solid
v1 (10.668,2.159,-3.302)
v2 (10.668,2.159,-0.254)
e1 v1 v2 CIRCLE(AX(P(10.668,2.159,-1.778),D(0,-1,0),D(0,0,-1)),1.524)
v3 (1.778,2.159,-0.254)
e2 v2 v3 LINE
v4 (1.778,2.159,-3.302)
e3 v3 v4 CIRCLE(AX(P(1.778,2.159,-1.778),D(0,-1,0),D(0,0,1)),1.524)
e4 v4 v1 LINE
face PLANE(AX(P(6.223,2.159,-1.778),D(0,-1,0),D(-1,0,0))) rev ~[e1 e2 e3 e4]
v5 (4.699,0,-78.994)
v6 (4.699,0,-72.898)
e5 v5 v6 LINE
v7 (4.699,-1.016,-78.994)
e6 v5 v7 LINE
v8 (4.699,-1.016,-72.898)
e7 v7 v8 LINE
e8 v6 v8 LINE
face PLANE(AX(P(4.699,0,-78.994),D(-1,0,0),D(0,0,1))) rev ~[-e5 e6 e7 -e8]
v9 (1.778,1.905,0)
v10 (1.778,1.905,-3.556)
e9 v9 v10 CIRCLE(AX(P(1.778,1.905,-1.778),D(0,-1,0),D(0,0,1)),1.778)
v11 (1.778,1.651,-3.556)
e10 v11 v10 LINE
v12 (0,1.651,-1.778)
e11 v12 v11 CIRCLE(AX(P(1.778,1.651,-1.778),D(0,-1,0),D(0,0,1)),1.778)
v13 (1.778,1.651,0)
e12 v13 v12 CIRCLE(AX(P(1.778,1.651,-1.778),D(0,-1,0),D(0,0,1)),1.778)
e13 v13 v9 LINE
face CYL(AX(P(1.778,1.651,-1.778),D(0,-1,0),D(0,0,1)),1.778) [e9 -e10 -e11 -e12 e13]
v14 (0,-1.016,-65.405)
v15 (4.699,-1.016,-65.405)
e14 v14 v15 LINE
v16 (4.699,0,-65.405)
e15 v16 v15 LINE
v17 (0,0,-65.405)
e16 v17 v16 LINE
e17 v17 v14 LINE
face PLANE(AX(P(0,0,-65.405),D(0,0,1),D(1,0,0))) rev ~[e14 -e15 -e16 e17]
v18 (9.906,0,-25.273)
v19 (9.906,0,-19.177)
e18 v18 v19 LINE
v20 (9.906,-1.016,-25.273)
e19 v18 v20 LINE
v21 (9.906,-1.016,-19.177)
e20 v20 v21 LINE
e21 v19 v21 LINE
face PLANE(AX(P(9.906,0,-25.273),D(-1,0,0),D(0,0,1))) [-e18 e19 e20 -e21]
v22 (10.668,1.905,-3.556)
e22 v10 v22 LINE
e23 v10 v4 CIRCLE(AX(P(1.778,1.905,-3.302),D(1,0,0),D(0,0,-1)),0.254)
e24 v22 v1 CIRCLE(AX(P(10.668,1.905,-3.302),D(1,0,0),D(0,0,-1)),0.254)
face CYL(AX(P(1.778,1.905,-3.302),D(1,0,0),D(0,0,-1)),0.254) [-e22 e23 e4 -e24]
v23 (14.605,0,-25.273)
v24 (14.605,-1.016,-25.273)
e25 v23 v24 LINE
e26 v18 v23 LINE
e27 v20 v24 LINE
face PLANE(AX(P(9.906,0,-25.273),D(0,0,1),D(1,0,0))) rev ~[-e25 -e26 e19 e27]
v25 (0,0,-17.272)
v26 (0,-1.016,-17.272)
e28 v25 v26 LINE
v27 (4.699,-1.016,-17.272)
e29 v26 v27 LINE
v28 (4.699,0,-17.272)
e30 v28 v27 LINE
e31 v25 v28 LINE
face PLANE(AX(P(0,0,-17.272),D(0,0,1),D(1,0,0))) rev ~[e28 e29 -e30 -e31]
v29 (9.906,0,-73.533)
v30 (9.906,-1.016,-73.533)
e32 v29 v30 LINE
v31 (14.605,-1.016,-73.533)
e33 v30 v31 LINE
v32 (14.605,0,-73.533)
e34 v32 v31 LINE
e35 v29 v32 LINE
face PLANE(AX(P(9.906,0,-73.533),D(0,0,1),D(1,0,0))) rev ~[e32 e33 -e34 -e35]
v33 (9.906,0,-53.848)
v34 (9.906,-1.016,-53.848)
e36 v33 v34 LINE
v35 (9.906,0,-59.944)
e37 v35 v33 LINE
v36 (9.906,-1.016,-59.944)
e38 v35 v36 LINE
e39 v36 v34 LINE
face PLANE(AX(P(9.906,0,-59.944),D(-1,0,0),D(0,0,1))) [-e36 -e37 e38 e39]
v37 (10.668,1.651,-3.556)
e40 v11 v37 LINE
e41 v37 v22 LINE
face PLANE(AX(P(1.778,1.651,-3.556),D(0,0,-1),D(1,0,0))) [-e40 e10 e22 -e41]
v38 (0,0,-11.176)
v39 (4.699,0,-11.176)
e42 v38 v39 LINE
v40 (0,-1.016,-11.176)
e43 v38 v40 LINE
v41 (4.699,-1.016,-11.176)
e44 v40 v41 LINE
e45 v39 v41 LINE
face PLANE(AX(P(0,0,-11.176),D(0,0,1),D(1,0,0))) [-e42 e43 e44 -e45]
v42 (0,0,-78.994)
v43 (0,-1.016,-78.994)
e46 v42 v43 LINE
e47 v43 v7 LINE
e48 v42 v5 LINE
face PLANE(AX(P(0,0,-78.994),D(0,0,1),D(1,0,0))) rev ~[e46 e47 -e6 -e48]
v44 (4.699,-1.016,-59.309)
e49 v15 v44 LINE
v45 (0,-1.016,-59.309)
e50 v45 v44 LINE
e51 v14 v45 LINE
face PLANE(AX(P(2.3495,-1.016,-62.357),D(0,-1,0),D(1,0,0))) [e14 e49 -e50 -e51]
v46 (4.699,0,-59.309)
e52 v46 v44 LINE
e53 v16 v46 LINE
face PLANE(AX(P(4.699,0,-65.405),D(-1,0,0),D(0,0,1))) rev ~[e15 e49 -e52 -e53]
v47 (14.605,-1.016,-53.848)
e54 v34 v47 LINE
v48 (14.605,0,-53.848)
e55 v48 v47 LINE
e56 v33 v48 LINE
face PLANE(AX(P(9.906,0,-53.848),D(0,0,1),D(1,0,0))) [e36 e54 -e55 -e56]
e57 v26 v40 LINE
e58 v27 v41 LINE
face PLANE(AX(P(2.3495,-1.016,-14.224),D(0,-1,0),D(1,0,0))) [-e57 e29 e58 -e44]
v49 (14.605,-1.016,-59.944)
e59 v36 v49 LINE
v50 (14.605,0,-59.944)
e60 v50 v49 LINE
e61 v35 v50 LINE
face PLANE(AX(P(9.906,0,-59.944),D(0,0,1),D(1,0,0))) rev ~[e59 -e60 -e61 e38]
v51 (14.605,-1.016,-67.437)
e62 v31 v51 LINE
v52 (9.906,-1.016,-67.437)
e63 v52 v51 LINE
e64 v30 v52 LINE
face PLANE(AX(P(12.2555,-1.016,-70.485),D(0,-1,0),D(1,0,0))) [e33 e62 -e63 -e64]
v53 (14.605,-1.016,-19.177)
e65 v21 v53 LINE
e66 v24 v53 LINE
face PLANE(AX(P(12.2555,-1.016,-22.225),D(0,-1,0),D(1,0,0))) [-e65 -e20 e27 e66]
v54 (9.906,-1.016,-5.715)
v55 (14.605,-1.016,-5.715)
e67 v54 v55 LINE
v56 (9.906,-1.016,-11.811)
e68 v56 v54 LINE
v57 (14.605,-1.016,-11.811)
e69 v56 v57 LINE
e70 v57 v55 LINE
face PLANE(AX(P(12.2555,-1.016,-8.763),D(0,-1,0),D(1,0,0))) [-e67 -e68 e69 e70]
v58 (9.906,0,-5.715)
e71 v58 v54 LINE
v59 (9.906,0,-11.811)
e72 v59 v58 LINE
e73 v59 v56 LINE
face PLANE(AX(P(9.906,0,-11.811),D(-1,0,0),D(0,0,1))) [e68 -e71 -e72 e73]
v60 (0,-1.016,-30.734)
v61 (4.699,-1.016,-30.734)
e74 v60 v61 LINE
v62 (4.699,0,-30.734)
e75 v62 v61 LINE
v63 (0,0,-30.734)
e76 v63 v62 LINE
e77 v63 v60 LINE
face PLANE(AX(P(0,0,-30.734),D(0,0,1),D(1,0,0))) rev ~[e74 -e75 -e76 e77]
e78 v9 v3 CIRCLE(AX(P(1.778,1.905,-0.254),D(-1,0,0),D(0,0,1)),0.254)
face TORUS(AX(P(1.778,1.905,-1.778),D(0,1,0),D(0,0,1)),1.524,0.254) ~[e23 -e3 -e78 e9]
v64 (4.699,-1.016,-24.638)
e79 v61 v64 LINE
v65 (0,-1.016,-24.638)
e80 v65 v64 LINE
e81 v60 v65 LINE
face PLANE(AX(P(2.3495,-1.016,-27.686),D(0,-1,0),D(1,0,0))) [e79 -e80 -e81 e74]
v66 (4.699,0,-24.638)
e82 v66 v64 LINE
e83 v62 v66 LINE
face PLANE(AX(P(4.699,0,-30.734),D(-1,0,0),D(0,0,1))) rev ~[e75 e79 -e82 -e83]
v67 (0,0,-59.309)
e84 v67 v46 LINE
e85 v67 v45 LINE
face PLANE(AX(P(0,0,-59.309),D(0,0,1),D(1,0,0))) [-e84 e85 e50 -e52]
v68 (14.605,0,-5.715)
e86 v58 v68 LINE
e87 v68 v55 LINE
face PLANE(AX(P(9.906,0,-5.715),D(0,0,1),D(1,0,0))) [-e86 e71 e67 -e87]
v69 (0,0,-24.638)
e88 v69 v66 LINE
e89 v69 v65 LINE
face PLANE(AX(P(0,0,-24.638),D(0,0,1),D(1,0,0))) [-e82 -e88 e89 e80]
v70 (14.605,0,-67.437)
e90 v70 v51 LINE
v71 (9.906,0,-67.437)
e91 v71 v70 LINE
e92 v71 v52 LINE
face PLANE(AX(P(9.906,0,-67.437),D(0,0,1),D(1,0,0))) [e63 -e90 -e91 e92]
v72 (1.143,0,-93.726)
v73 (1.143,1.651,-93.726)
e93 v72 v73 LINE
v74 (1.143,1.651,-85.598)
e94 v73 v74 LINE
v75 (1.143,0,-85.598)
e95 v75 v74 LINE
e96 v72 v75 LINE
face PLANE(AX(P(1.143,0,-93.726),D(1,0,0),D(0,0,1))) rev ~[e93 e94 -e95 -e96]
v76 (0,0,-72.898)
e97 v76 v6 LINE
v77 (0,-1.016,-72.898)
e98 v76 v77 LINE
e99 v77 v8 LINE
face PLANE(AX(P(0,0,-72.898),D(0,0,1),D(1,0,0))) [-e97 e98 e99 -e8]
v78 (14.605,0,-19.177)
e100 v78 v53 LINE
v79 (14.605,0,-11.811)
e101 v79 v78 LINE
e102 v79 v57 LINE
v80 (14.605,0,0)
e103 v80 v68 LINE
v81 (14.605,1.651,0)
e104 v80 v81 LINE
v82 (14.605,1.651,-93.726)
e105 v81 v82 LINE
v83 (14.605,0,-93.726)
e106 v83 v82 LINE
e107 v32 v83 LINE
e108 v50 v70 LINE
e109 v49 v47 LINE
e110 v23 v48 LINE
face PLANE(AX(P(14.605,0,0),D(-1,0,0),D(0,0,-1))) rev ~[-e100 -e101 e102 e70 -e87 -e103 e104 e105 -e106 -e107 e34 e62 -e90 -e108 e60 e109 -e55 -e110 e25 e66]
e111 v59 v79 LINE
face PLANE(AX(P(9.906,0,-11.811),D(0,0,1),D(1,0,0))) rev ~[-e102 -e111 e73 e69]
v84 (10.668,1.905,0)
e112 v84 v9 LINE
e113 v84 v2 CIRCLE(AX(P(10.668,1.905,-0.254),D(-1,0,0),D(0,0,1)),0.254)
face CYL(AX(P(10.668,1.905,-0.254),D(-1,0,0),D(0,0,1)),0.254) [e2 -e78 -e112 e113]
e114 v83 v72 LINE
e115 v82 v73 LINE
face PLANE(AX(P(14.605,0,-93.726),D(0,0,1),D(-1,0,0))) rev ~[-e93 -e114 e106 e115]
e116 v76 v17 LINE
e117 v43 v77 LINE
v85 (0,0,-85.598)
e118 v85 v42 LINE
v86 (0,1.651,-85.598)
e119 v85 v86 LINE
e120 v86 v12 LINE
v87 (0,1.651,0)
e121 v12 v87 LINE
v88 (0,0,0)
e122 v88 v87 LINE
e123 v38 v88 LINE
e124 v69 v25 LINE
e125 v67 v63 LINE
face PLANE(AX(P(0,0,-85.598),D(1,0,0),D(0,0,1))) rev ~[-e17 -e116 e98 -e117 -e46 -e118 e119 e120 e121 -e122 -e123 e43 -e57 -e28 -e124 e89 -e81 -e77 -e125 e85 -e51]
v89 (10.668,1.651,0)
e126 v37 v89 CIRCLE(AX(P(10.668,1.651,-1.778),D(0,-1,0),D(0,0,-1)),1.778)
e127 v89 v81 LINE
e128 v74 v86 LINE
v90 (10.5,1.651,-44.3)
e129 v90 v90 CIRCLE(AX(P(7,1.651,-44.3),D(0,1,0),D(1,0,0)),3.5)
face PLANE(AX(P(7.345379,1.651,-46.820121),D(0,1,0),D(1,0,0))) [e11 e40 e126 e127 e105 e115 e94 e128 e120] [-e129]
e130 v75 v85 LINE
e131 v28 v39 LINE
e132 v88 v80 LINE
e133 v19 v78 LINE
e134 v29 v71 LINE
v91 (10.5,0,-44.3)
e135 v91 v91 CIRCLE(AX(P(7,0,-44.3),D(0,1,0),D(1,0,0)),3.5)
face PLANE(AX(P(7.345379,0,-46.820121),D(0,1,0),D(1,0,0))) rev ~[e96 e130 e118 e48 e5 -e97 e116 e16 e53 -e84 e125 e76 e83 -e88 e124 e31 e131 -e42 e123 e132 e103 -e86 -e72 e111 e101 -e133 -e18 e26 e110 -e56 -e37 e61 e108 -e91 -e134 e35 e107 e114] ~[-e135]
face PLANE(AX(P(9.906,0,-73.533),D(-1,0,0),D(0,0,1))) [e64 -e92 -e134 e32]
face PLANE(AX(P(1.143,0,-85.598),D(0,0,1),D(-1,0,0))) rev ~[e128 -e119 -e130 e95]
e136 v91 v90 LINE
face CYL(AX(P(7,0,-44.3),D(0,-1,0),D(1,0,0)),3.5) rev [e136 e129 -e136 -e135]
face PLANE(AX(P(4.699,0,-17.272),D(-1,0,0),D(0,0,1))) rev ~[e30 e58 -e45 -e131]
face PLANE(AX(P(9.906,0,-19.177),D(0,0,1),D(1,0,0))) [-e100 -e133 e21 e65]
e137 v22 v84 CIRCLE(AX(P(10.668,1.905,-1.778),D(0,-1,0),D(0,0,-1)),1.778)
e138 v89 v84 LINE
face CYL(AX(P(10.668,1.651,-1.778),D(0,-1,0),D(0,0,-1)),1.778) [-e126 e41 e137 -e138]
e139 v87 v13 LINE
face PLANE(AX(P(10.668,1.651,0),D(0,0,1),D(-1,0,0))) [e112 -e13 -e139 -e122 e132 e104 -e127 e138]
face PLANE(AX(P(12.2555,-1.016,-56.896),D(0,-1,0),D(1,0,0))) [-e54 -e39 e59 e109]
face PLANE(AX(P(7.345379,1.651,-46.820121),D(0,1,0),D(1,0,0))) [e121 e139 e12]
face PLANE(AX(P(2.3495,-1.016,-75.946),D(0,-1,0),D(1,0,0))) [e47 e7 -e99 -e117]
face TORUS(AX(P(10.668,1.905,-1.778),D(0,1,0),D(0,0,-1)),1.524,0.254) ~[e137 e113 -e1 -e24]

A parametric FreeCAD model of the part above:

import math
import FreeCAD as App
import Part
import Sketcher

V = App.Vector
Q = App.Units.Quantity


def edges_at(feature, points):
    """Names of the edges that pass closest to the given points."""
    edges = feature.Shape.Edges
    near = lambda p: min(range(len(edges)), key=lambda i: edges[i].distToShape(Part.Vertex(*p))[0])
    return sorted({f"Edge{near(p) + 1}" for p in points})


def add_polygon(sketch, points):
    """Adds a closed chain of lines whose ends are joined by coincident constraints."""
    first, n = sketch.GeometryCount, len(points)
    for a, b in zip(points, points[1:] + points[:1]):
        sketch.addGeometry(Part.LineSegment(App.Vector(*a, 0), App.Vector(*b, 0)), False)
    for i in range(n):
        sketch.addConstraint(Sketcher.Constraint("Coincident", first + i, 2, first + (i + 1) % n, 1))

doc = App.newDocument("Part")
params = doc.addObject("Spreadsheet::Sheet", "Params")
for row, (alias, value) in enumerate([
    ("sketch1_width", "0.53 in"),
    ("sketch1_height", "3.37 in"),
    ("sketch1_height2", "3.69 in"),
    ("sketch1_width2", "0.575 in"),
    ("pad1_length", "0.065 in"),
    ("sketch2_radius", "0.07 in"),
    ("sketch2_width", "0.35 in"),
    ("pad2_length", "0.02 in"),
    ("fillet_radius", "0.01 in"),
    ("sketch3_height", "0.24 in"),
    ("sketch3_width", "0.185 in"),
    ("pad3_length", "0.04 in"),
], start=1):
    params.set(f"A{row}", alias)
    params.set(f"B{row}", "=" + value)
    params.setAlias(f"B{row}", alias)

body = doc.addObject("PartDesign::Body", "Body")

# Sketch on XZ plane
sketch1 = doc.addObject("Sketcher::SketchObject", "Sketch")
body.addObject(sketch1)
sketch1.AttachmentSupport = (doc.XZ_Plane, [""])
sketch1.MapMode = "FlatFace"
add_polygon(sketch1, [(0, -85.6), (0, 0), (14.6, 0), (14.6, -93.7), (1.1, -93.7), (1.1, -85.6)])  # lines 0-5
sketch1.addGeometry(Part.Circle(V(7, -44.3, 0), V(0, 0, 1), 3.5), False)  # 6
sketch1.addConstraint(Sketcher.Constraint("Vertical", 0))
sketch1.addConstraint(Sketcher.Constraint("Horizontal", 1))
sketch1.addConstraint(Sketcher.Constraint("Vertical", 2))
sketch1.addConstraint(Sketcher.Constraint("Horizontal", 3))
sketch1.addConstraint(Sketcher.Constraint("Vertical", 4))
sketch1.addConstraint(Sketcher.Constraint("Horizontal", 5))
sketch1.addConstraint(Sketcher.Constraint("Coincident", 0, 2, -1, 1))
sketch1.addConstraint(Sketcher.Constraint("DistanceX", 3, 2, 3, 1, Q("0.53 in")))
sketch1.addConstraint(Sketcher.Constraint("DistanceY", 0, 1, 0, 2, Q("3.37 in")))
sketch1.addConstraint(Sketcher.Constraint("DistanceY", 2, 2, 2, 1, Q("3.69 in")))
sketch1.addConstraint(Sketcher.Constraint("Diameter", 6, Q("7 mm")))
sketch1.addConstraint(Sketcher.Constraint("DistanceX", 1, 1, 1, 2, Q("0.575 in")))
sketch1.addConstraint(Sketcher.Constraint("DistanceX", -1, 1, 6, 3, Q("7 mm")))
sketch1.addConstraint(Sketcher.Constraint("DistanceY", 6, 3, -1, 1, Q("44.3 mm")))
sketch1.setExpression("Constraints[13]", "Params.sketch1_width")
sketch1.setExpression("Constraints[14]", "Params.sketch1_height")
sketch1.setExpression("Constraints[15]", "Params.sketch1_height2")
sketch1.setExpression("Constraints[17]", "Params.sketch1_width2")
pad1 = doc.addObject("PartDesign::Pad", "Pad")
body.addObject(pad1)
pad1.Profile = sketch1
pad1.setExpression("Length", "Params.pad1_length")
pad1.Reversed = True

# Sketch on XZ plane
sketch2 = doc.addObject("Sketcher::SketchObject", "Sketch001")
body.addObject(sketch2)
sketch2.AttachmentSupport = (doc.XZ_Plane, [""])
sketch2.MapMode = "FlatFace"
sketch2.AttachmentOffset = App.Placement(V(0, 0, -0.065 * 25.4), App.Rotation())
sketch2.addGeometry(Part.LineSegment(V(10.7, -3.6, 0), V(1.8, -3.6, 0)), False)
sketch2.addGeometry(Part.ArcOfCircle(Part.Circle(V(1.8, -1.8, 0), V(0, 0, 1), 1.8), math.radians(90), math.radians(270)), False)
sketch2.addGeometry(Part.LineSegment(V(1.8, 0, 0), V(10.7, 0, 0)), False)
sketch2.addGeometry(Part.ArcOfCircle(Part.Circle(V(10.7, -1.8, 0), V(0, 0, 1), 1.8), math.radians(-90), math.radians(90)), False)
sketch2.addConstraint(Sketcher.Constraint("Tangent", 0, 2, 1, 2))
sketch2.addConstraint(Sketcher.Constraint("Tangent", 1, 1, 2, 1))
sketch2.addConstraint(Sketcher.Constraint("Tangent", 2, 2, 3, 2))
sketch2.addConstraint(Sketcher.Constraint("Tangent", 3, 1, 0, 1))
sketch2.addConstraint(Sketcher.Constraint("Horizontal", 0))
sketch2.addConstraint(Sketcher.Constraint("Horizontal", 2))
sketch2.addConstraint(Sketcher.Constraint("PointOnObject", 1, 1, -1))
sketch2.addConstraint(Sketcher.Constraint("Radius", 1, Q("0.07 in")))
sketch2.addConstraint(Sketcher.Constraint("DistanceX", 0, 2, 0, 1, Q("0.35 in")))
sketch2.addConstraint(Sketcher.Constraint("DistanceX", -1, 1, 1, 3, Q("0.07 in")))
sketch2.setExpression("Constraints[7]", "Params.sketch2_radius")
sketch2.setExpression("Constraints[8]", "Params.sketch2_width")
pad2 = doc.addObject("PartDesign::Pad", "Pad001")
body.addObject(pad2)
pad2.Profile = sketch2
pad2.setExpression("Length", "Params.pad2_length")
pad2.Reversed = True
doc.recompute()

fillet = doc.addObject("PartDesign::Fillet", "Fillet")
body.addObject(fillet)
fillet.Base = (pad2, edges_at(pad2, [
    (6.223, 2.159, -3.556),
    (6.223, 2.159, 0),
    (12.446, 2.159, -1.778),
    (0, 2.159, -1.778),
]))
fillet.setExpression("Radius", "Params.fillet_radius")

# Sketch on XZ plane
sketch3 = doc.addObject("Sketcher::SketchObject", "Sketch002")
body.addObject(sketch3)
sketch3.AttachmentSupport = (doc.XZ_Plane, [""])
sketch3.MapMode = "FlatFace"
add_polygon(sketch3, [(9.9, -5.7), (9.9, -11.8), (14.6, -11.8), (14.6, -5.7)])  # lines 0-3
add_polygon(sketch3, [(9.9, -19.2), (9.9, -25.3), (14.6, -25.3), (14.6, -19.2)])  # lines 4-7
add_polygon(sketch3, [(9.9, -53.8), (9.9, -59.9), (14.6, -59.9), (14.6, -53.8)])  # lines 8-11
add_polygon(sketch3, [(9.9, -67.4), (9.9, -73.5), (14.6, -73.5), (14.6, -67.4)])  # lines 12-15
add_polygon(sketch3, [(0, -72.9), (0, -79), (4.7, -79), (4.7, -72.9)])  # lines 16-19
add_polygon(sketch3, [(0, -59.3), (0, -65.4), (4.7, -65.4), (4.7, -59.3)])  # lines 20-23
add_polygon(sketch3, [(0, -24.6), (0, -30.7), (4.7, -30.7), (4.7, -24.6)])  # lines 24-27
add_polygon(sketch3, [(0, -11.2), (0, -17.3), (4.7, -17.3), (4.7, -11.2)])  # lines 28-31
sketch3.addConstraint(Sketcher.Constraint("Vertical", 0))
sketch3.addConstraint(Sketcher.Constraint("Horizontal", 1))
sketch3.addConstraint(Sketcher.Constraint("Vertical", 2))
sketch3.addConstraint(Sketcher.Constraint("Horizontal", 3))
sketch3.addConstraint(Sketcher.Constraint("Vertical", 4))
sketch3.addConstraint(Sketcher.Constraint("Horizontal", 5))
sketch3.addConstraint(Sketcher.Constraint("Vertical", 6))
sketch3.addConstraint(Sketcher.Constraint("Horizontal", 7))
sketch3.addConstraint(Sketcher.Constraint("Vertical", 8))
sketch3.addConstraint(Sketcher.Constraint("Horizontal", 9))
sketch3.addConstraint(Sketcher.Constraint("Vertical", 10))
sketch3.addConstraint(Sketcher.Constraint("Horizontal", 11))
sketch3.addConstraint(Sketcher.Constraint("Vertical", 12))
sketch3.addConstraint(Sketcher.Constraint("Horizontal", 13))
sketch3.addConstraint(Sketcher.Constraint("Vertical", 14))
sketch3.addConstraint(Sketcher.Constraint("Horizontal", 15))
sketch3.addConstraint(Sketcher.Constraint("Vertical", 16))
sketch3.addConstraint(Sketcher.Constraint("Horizontal", 17))
sketch3.addConstraint(Sketcher.Constraint("Vertical", 18))
sketch3.addConstraint(Sketcher.Constraint("Horizontal", 19))
sketch3.addConstraint(Sketcher.Constraint("Vertical", 20))
sketch3.addConstraint(Sketcher.Constraint("Horizontal", 21))
sketch3.addConstraint(Sketcher.Constraint("Vertical", 22))
sketch3.addConstraint(Sketcher.Constraint("Horizontal", 23))
sketch3.addConstraint(Sketcher.Constraint("Vertical", 24))
sketch3.addConstraint(Sketcher.Constraint("Horizontal", 25))
sketch3.addConstraint(Sketcher.Constraint("Vertical", 26))
sketch3.addConstraint(Sketcher.Constraint("Horizontal", 27))
sketch3.addConstraint(Sketcher.Constraint("Vertical", 28))
sketch3.addConstraint(Sketcher.Constraint("Horizontal", 29))
sketch3.addConstraint(Sketcher.Constraint("Vertical", 30))
sketch3.addConstraint(Sketcher.Constraint("Horizontal", 31))
sketch3.addConstraint(Sketcher.Constraint("PointOnObject", 16, 2, -2))
sketch3.addConstraint(Sketcher.Constraint("PointOnObject", 20, 2, -2))
sketch3.addConstraint(Sketcher.Constraint("PointOnObject", 24, 2, -2))
sketch3.addConstraint(Sketcher.Constraint("PointOnObject", 28, 2, -2))
sketch3.addConstraint(Sketcher.Constraint("Vertical", 3, 2, 4, 2))
sketch3.addConstraint(Sketcher.Constraint("Vertical", 2, 2, 5, 2))
sketch3.addConstraint(Sketcher.Constraint("Vertical", 7, 2, 8, 2))
sketch3.addConstraint(Sketcher.Constraint("Vertical", 6, 2, 9, 2))
sketch3.addConstraint(Sketcher.Constraint("Vertical", 11, 2, 12, 2))
sketch3.addConstraint(Sketcher.Constraint("Vertical", 10, 2, 13, 2))
sketch3.addConstraint(Sketcher.Constraint("Vertical", 18, 2, 21, 2))
sketch3.addConstraint(Sketcher.Constraint("Vertical", 22, 2, 25, 2))
sketch3.addConstraint(Sketcher.Constraint("Vertical", 26, 2, 29, 2))
sketch3.addConstraint(Sketcher.Constraint("Equal", 15, 17))
sketch3.addConstraint(Sketcher.Constraint("Equal", 2, 4))
sketch3.addConstraint(Sketcher.Constraint("Equal", 6, 8))
sketch3.addConstraint(Sketcher.Constraint("Equal", 10, 12))
sketch3.addConstraint(Sketcher.Constraint("Equal", 14, 16))
sketch3.addConstraint(Sketcher.Constraint("Equal", 18, 20))
sketch3.addConstraint(Sketcher.Constraint("Equal", 22, 24))
sketch3.addConstraint(Sketcher.Constraint("Equal", 26, 28))
sketch3.addConstraint(Sketcher.Constraint("DistanceY", 0, 2, 0, 1, Q("0.24 in")))
sketch3.addConstraint(Sketcher.Constraint("DistanceY", 12, 2, 4, 2, Q("1.9 in")))
sketch3.addConstraint(Sketcher.Constraint("DistanceX", 1, 1, 1, 2, Q("0.185 in")))
sketch3.addConstraint(Sketcher.Constraint("DistanceX", -1, 1, 0, 2, Q("0.39 in")))
sketch3.addConstraint(Sketcher.Constraint("DistanceY", 8, 2, -1, 1, Q("2.36 in")))
sketch3.addConstraint(Sketcher.Constraint("DistanceY", 16, 2, -1, 1, Q("3.11 in")))
sketch3.addConstraint(Sketcher.Constraint("DistanceY", 24, 2, -1, 1, Q("1.21 in")))
sketch3.addConstraint(Sketcher.Constraint("DistanceY", 28, 2, -1, 1, Q("0.68 in")))
sketch3.addConstraint(Sketcher.Constraint("DistanceY", 4, 2, 0, 2, Q("0.53 in")))
sketch3.addConstraint(Sketcher.Constraint("DistanceY", 15, 2, 20, 2, Q("0.08 in")))
sketch3.addConstraint(Sketcher.Constraint("DistanceY", 0, 2, -1, 1, Q("0.465 in")))
sketch3.setExpression("Constraints[85]", "Params.sketch3_height")
sketch3.setExpression("Constraints[87]", "Params.sketch3_width")
pad3 = doc.addObject("PartDesign::Pad", "Pad002")
body.addObject(pad3)
pad3.Profile = sketch3
pad3.setExpression("Length", "Params.pad3_length")

doc.recompute()
